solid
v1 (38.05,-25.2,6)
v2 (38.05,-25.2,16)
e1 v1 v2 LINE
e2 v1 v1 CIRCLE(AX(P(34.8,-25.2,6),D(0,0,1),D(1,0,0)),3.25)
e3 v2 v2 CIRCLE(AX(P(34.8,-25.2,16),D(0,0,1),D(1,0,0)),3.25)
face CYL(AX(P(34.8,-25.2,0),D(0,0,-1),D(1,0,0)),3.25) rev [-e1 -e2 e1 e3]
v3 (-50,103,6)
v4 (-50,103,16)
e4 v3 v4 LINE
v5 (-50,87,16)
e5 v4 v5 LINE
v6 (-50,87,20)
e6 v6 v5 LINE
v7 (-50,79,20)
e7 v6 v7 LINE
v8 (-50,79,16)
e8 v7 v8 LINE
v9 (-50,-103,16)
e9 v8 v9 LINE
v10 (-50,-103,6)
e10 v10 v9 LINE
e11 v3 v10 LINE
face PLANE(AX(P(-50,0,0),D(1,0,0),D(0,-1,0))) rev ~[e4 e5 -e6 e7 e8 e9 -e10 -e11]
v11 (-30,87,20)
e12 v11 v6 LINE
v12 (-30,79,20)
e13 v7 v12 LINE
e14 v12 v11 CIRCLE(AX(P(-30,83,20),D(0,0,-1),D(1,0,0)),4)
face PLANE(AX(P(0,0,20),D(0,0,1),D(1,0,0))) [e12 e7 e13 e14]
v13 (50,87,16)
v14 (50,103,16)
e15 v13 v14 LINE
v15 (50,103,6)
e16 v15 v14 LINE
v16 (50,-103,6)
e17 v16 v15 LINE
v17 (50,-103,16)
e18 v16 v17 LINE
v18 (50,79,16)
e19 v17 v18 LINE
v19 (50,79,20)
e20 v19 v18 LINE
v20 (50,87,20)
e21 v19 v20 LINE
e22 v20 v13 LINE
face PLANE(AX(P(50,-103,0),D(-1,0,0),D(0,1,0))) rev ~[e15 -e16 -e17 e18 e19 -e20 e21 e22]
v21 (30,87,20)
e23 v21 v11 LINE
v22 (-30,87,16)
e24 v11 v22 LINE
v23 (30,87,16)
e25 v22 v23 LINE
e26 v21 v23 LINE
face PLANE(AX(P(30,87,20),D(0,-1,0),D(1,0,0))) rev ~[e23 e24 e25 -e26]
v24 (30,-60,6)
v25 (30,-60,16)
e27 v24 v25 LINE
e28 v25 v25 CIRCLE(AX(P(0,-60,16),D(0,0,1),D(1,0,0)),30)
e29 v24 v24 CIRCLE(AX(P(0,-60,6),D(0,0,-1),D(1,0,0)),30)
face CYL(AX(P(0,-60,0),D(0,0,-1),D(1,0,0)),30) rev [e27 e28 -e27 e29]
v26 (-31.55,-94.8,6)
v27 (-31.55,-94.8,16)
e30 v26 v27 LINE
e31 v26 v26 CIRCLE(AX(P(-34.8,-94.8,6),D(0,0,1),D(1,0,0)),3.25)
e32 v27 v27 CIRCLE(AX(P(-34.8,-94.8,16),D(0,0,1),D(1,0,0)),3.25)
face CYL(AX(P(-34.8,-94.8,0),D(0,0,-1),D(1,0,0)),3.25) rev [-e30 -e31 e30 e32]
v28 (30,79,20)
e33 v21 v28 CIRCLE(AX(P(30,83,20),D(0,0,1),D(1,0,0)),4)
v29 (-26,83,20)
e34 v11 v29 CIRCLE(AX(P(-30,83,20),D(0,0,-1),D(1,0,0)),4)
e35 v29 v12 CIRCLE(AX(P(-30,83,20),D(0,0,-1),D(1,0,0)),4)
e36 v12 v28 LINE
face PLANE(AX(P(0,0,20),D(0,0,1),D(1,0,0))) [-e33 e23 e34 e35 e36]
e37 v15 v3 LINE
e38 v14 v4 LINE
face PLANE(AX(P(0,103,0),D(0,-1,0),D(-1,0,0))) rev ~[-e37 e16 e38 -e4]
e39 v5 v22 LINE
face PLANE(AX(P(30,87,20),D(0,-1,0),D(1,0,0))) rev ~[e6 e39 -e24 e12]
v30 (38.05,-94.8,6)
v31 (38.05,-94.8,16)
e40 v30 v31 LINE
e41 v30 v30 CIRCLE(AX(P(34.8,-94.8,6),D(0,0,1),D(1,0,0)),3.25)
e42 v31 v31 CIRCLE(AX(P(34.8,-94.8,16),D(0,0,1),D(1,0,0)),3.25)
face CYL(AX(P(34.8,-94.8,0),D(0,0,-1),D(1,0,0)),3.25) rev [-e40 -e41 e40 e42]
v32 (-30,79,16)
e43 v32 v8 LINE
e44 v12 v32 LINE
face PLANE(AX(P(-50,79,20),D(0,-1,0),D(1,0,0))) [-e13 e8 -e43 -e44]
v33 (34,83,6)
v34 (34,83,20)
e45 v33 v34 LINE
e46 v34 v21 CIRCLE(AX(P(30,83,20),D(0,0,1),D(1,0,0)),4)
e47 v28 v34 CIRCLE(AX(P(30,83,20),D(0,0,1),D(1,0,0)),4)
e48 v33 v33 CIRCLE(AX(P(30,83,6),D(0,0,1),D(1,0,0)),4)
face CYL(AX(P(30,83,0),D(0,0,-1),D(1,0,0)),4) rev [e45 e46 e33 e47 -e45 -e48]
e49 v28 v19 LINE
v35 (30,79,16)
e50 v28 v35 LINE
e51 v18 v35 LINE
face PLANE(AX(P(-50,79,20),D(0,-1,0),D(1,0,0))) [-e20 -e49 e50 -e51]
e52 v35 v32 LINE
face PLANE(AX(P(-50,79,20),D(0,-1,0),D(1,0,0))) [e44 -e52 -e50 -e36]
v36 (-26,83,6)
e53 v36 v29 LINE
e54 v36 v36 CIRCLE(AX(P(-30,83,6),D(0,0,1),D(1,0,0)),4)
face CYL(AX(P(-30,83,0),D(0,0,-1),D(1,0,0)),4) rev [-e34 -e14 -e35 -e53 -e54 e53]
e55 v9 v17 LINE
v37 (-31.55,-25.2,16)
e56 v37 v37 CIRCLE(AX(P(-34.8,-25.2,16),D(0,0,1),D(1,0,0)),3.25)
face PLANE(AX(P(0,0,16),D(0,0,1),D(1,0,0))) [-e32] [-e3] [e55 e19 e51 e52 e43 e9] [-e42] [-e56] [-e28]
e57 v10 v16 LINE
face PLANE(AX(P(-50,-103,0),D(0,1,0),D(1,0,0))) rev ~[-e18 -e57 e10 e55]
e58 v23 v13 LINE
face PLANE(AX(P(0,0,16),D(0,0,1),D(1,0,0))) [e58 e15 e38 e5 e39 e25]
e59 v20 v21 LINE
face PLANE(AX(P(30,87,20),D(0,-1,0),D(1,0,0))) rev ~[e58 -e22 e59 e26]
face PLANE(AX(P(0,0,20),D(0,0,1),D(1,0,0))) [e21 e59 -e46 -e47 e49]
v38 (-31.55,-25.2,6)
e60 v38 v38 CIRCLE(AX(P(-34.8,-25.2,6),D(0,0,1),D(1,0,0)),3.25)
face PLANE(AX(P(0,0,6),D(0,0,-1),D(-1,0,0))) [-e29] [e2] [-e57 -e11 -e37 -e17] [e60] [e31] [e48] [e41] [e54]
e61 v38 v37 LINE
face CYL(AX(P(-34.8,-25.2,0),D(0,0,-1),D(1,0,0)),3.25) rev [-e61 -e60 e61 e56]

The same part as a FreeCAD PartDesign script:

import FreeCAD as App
import Part
import Sketcher
Q = App.Units.Quantity


def add_polygon(sketch, points):
    """Adds a closed chain of lines whose ends are joined by coincident constraints."""
    first, n = sketch.GeometryCount, len(points)
    for a, b in zip(points, points[1:] + points[:1]):
        sketch.addGeometry(Part.LineSegment(App.Vector(*a, 0), App.Vector(*b, 0)), False)
    for i in range(n):
        sketch.addConstraint(Sketcher.Constraint("Coincident", first + i, 2, first + (i + 1) % n, 1))

doc = App.newDocument("Part")
body = doc.addObject("PartDesign::Body", "Body")

# Sketch on XY plane
sketch1 = body.newObject("Sketcher::SketchObject", "Sketch")
sketch1.AttachmentSupport = (doc.getObject("XY_Plane"), [""])
sketch1.MapMode = "FlatFace"
add_polygon(sketch1, [(-50, -103), (50, -103), (50, 103), (-50, 103)])  # lines 0-3
sketch1.addGeometry(Part.Circle(App.Vector(0, -60, 0), App.Vector(0, 0, 1), 30), False)  # 4
sketch1.addGeometry(Part.Circle(App.Vector(-34.8, -94.8, 0), App.Vector(0, 0, 1), 3.2), False)  # 5
sketch1.addGeometry(Part.Circle(App.Vector(-34.8, -25.2, 0), App.Vector(0, 0, 1), 3.2), False)  # 6
sketch1.addGeometry(Part.Circle(App.Vector(34.8, -94.8, 0), App.Vector(0, 0, 1), 3.2), False)  # 7
sketch1.addGeometry(Part.Circle(App.Vector(34.8, -25.2, 0), App.Vector(0, 0, 1), 3.2), False)  # 8
sketch1.addGeometry(Part.Circle(App.Vector(-30, 83, 0), App.Vector(0, 0, 1), 4), False)  # 9
sketch1.addGeometry(Part.Circle(App.Vector(30, 83, 0), App.Vector(0, 0, 1), 4), False)  # 10
sketch1.addConstraint([
    Sketcher.Constraint("Horizontal", 0),
    Sketcher.Constraint("Vertical", 1),
    Sketcher.Constraint("Horizontal", 2),
    Sketcher.Constraint("Vertical", 3),
    Sketcher.Constraint("Equal", 5, 6),
    Sketcher.Constraint("Equal", 6, 7),
    Sketcher.Constraint("Equal", 7, 8),
    Sketcher.Constraint("Equal", 9, 10),
    Sketcher.Constraint("Symmetric", 0, 2, 2, 2, -1, 1),
    Sketcher.Constraint("Symmetric", 5, 3, 7, 3, -2),
    Sketcher.Constraint("Symmetric", 6, 3, 8, 3, -2),
    Sketcher.Constraint("Symmetric", 9, 3, 10, 3, -2),
    Sketcher.Constraint("PointOnObject", 4, 3, -2),
    Sketcher.Constraint("Vertical", 5, 3, 6, 3),
    Sketcher.Constraint("Diameter", 4, Q("60 mm")),
    Sketcher.Constraint("Diameter", 9, Q("8 mm")),
    Sketcher.Constraint("Diameter", 5, Q("6.5 mm")),
    Sketcher.Constraint("DistanceX", 0, 1, 0, 2, Q("100 mm")),
    Sketcher.Constraint("DistanceY", 1, 1, 1, 2, Q("206 mm")),
    Sketcher.Constraint("DistanceY", 4, 3, -1, 1, Q("60 mm")),
    Sketcher.Constraint("DistanceX", 9, 3, 10, 3, Q("60 mm")),
    Sketcher.Constraint("DistanceY", 10, 3, 1, 2, Q("20 mm")),
    Sketcher.Constraint("DistanceX", 5, 3, -1, 1, Q("34.8 mm")),
    Sketcher.Constraint("DistanceY", 5, 3, 4, 3, Q("34.8 mm")),
    Sketcher.Constraint("DistanceY", 4, 3, 6, 3, Q("34.8 mm")),
])
pad1 = body.newObject("PartDesign::Pad", "Pad")
pad1.Profile = sketch1
pad1.Length = 20

# Sketch on XY plane
sketch2 = body.newObject("Sketcher::SketchObject", "Sketch001")
sketch2.AttachmentSupport = (doc.getObject("XY_Plane"), [""])
sketch2.MapMode = "FlatFace"
sketch2.AttachmentOffset = App.Placement(App.Vector(0, 0, 20), App.Rotation())
add_polygon(sketch2, [(50, 87), (50, 103), (-50, 103), (-50, 87)])  # lines 0-3
add_polygon(sketch2, [(50, -103), (50, 79), (-50, 79), (-50, -103)])  # lines 4-7
sketch2.addGeometry(Part.Circle(App.Vector(-34.8, -94.8, 0), App.Vector(0, 0, 1), 3.2), False)  # 8
sketch2.addGeometry(Part.Circle(App.Vector(-34.8, -25.2, 0), App.Vector(0, 0, 1), 3.2), False)  # 9
sketch2.addGeometry(Part.Circle(App.Vector(0, -60, 0), App.Vector(0, 0, 1), 30), False)  # 10
sketch2.addGeometry(Part.Circle(App.Vector(34.8, -94.8, 0), App.Vector(0, 0, 1), 3.2), False)  # 11
sketch2.addGeometry(Part.Circle(App.Vector(34.8, -25.2, 0), App.Vector(0, 0, 1), 3.2), False)  # 12
sketch2.addConstraint([
    Sketcher.Constraint("Vertical", 0),
    Sketcher.Constraint("Horizontal", 1),
    Sketcher.Constraint("Vertical", 2),
    Sketcher.Constraint("Horizontal", 3),
    Sketcher.Constraint("Vertical", 4),
    Sketcher.Constraint("Horizontal", 5),
    Sketcher.Constraint("Vertical", 6),
    Sketcher.Constraint("Horizontal", 7),
    Sketcher.Constraint("Equal", 8, 9),
    Sketcher.Constraint("Equal", 9, 11),
    Sketcher.Constraint("Equal", 11, 12),
    Sketcher.Constraint("Symmetric", 0, 2, 6, 2, -1, 1),
    Sketcher.Constraint("Symmetric", 8, 3, 11, 3, -2),
    Sketcher.Constraint("Symmetric", 9, 3, 12, 3, -2),
    Sketcher.Constraint("PointOnObject", 10, 3, -2),
    Sketcher.Constraint("Vertical", 8, 3, 9, 3),
    Sketcher.Constraint("Vertical", 3, 2, 4, 2),
    Sketcher.Constraint("Vertical", 2, 2, 5, 2),
    Sketcher.Constraint("Diameter", 10, Q("60 mm")),
    Sketcher.Constraint("Diameter", 8, Q("6.5 mm")),
    Sketcher.Constraint("DistanceX", 1, 2, 1, 1, Q("100 mm")),
    Sketcher.Constraint("DistanceY", 0, 1, 0, 2, Q("16 mm")),
    Sketcher.Constraint("DistanceY", 4, 1, 4, 2, Q("182 mm")),
    Sketcher.Constraint("DistanceY", 10, 3, -1, 1, Q("60 mm")),
    Sketcher.Constraint("DistanceY", -1, 1, 0, 2, Q("103 mm")),
    Sketcher.Constraint("DistanceX", 8, 3, -1, 1, Q("34.8 mm")),
    Sketcher.Constraint("DistanceY", 8, 3, -1, 1, Q("94.8 mm")),
    Sketcher.Constraint("DistanceY", 9, 3, -1, 1, Q("25.2 mm")),
])
pocket1 = body.newObject("PartDesign::Pocket", "Pocket")
pocket1.Profile = sketch2
pocket1.Length = 4

# Sketch on XY plane
sketch3 = body.newObject("Sketcher::SketchObject", "Sketch002")
sketch3.AttachmentSupport = (doc.getObject("XY_Plane"), [""])
sketch3.MapMode = "FlatFace"
add_polygon(sketch3, [(-50, 103), (50, 103), (50, -103), (-50, -103)])  # lines 0-3
sketch3.addGeometry(Part.Circle(App.Vector(34.8, -94.8, 0), App.Vector(0, 0, 1), 3.2), False)  # 4
sketch3.addGeometry(Part.Circle(App.Vector(34.8, -25.2, 0), App.Vector(0, 0, 1), 3.2), False)  # 5
sketch3.addGeometry(Part.Circle(App.Vector(0, -60, 0), App.Vector(0, 0, 1), 30), False)  # 6
sketch3.addGeometry(Part.Circle(App.Vector(-34.8, -94.8, 0), App.Vector(0, 0, 1), 3.2), False)  # 7
sketch3.addGeometry(Part.Circle(App.Vector(-34.8, -25.2, 0), App.Vector(0, 0, 1), 3.2), False)  # 8
sketch3.addGeometry(Part.Circle(App.Vector(30, 83, 0), App.Vector(0, 0, 1), 4), False)  # 9
sketch3.addGeometry(Part.Circle(App.Vector(-30, 83, 0), App.Vector(0, 0, 1), 4), False)  # 10
sketch3.addConstraint([
    Sketcher.Constraint("Horizontal", 0),
    Sketcher.Constraint("Vertical", 1),
    Sketcher.Constraint("Horizontal", 2),
    Sketcher.Constraint("Vertical", 3),
    Sketcher.Constraint("Equal", 4, 5),
    Sketcher.Constraint("Equal", 5, 7),
    Sketcher.Constraint("Equal", 7, 8),
    Sketcher.Constraint("Equal", 9, 10),
    Sketcher.Constraint("Symmetric", 0, 2, 2, 2, -1, 1),
    Sketcher.Constraint("Symmetric", 4, 3, 7, 3, -2),
    Sketcher.Constraint("Symmetric", 5, 3, 8, 3, -2),
    Sketcher.Constraint("Symmetric", 9, 3, 10, 3, -2),
    Sketcher.Constraint("PointOnObject", 6, 3, -2),
    Sketcher.Constraint("Vertical", 4, 3, 5, 3),
    Sketcher.Constraint("Diameter", 6, Q("60 mm")),
    Sketcher.Constraint("Diameter", 9, Q("8 mm")),
    Sketcher.Constraint("Diameter", 4, Q("6.5 mm")),
    Sketcher.Constraint("DistanceX", 0, 1, 0, 2, Q("100 mm")),
    Sketcher.Constraint("DistanceY", 1, 2, 1, 1, Q("206 mm")),
    Sketcher.Constraint("DistanceY", 6, 3, -1, 1, Q("60 mm")),
    Sketcher.Constraint("DistanceX", -1, 1, 9, 3, Q("30 mm")),
    Sketcher.Constraint("DistanceY", -1, 1, 9, 3, Q("83 mm")),
    Sketcher.Constraint("DistanceX", -1, 1, 4, 3, Q("34.8 mm")),
    Sketcher.Constraint("DistanceY", 4, 3, -1, 1, Q("94.8 mm")),
    Sketcher.Constraint("DistanceY", 5, 3, -1, 1, Q("25.2 mm")),
])
pocket2 = body.newObject("PartDesign::Pocket", "Pocket001")
pocket2.Profile = sketch3
pocket2.Length = 6
pocket2.Reversed = True

doc.recompute()
